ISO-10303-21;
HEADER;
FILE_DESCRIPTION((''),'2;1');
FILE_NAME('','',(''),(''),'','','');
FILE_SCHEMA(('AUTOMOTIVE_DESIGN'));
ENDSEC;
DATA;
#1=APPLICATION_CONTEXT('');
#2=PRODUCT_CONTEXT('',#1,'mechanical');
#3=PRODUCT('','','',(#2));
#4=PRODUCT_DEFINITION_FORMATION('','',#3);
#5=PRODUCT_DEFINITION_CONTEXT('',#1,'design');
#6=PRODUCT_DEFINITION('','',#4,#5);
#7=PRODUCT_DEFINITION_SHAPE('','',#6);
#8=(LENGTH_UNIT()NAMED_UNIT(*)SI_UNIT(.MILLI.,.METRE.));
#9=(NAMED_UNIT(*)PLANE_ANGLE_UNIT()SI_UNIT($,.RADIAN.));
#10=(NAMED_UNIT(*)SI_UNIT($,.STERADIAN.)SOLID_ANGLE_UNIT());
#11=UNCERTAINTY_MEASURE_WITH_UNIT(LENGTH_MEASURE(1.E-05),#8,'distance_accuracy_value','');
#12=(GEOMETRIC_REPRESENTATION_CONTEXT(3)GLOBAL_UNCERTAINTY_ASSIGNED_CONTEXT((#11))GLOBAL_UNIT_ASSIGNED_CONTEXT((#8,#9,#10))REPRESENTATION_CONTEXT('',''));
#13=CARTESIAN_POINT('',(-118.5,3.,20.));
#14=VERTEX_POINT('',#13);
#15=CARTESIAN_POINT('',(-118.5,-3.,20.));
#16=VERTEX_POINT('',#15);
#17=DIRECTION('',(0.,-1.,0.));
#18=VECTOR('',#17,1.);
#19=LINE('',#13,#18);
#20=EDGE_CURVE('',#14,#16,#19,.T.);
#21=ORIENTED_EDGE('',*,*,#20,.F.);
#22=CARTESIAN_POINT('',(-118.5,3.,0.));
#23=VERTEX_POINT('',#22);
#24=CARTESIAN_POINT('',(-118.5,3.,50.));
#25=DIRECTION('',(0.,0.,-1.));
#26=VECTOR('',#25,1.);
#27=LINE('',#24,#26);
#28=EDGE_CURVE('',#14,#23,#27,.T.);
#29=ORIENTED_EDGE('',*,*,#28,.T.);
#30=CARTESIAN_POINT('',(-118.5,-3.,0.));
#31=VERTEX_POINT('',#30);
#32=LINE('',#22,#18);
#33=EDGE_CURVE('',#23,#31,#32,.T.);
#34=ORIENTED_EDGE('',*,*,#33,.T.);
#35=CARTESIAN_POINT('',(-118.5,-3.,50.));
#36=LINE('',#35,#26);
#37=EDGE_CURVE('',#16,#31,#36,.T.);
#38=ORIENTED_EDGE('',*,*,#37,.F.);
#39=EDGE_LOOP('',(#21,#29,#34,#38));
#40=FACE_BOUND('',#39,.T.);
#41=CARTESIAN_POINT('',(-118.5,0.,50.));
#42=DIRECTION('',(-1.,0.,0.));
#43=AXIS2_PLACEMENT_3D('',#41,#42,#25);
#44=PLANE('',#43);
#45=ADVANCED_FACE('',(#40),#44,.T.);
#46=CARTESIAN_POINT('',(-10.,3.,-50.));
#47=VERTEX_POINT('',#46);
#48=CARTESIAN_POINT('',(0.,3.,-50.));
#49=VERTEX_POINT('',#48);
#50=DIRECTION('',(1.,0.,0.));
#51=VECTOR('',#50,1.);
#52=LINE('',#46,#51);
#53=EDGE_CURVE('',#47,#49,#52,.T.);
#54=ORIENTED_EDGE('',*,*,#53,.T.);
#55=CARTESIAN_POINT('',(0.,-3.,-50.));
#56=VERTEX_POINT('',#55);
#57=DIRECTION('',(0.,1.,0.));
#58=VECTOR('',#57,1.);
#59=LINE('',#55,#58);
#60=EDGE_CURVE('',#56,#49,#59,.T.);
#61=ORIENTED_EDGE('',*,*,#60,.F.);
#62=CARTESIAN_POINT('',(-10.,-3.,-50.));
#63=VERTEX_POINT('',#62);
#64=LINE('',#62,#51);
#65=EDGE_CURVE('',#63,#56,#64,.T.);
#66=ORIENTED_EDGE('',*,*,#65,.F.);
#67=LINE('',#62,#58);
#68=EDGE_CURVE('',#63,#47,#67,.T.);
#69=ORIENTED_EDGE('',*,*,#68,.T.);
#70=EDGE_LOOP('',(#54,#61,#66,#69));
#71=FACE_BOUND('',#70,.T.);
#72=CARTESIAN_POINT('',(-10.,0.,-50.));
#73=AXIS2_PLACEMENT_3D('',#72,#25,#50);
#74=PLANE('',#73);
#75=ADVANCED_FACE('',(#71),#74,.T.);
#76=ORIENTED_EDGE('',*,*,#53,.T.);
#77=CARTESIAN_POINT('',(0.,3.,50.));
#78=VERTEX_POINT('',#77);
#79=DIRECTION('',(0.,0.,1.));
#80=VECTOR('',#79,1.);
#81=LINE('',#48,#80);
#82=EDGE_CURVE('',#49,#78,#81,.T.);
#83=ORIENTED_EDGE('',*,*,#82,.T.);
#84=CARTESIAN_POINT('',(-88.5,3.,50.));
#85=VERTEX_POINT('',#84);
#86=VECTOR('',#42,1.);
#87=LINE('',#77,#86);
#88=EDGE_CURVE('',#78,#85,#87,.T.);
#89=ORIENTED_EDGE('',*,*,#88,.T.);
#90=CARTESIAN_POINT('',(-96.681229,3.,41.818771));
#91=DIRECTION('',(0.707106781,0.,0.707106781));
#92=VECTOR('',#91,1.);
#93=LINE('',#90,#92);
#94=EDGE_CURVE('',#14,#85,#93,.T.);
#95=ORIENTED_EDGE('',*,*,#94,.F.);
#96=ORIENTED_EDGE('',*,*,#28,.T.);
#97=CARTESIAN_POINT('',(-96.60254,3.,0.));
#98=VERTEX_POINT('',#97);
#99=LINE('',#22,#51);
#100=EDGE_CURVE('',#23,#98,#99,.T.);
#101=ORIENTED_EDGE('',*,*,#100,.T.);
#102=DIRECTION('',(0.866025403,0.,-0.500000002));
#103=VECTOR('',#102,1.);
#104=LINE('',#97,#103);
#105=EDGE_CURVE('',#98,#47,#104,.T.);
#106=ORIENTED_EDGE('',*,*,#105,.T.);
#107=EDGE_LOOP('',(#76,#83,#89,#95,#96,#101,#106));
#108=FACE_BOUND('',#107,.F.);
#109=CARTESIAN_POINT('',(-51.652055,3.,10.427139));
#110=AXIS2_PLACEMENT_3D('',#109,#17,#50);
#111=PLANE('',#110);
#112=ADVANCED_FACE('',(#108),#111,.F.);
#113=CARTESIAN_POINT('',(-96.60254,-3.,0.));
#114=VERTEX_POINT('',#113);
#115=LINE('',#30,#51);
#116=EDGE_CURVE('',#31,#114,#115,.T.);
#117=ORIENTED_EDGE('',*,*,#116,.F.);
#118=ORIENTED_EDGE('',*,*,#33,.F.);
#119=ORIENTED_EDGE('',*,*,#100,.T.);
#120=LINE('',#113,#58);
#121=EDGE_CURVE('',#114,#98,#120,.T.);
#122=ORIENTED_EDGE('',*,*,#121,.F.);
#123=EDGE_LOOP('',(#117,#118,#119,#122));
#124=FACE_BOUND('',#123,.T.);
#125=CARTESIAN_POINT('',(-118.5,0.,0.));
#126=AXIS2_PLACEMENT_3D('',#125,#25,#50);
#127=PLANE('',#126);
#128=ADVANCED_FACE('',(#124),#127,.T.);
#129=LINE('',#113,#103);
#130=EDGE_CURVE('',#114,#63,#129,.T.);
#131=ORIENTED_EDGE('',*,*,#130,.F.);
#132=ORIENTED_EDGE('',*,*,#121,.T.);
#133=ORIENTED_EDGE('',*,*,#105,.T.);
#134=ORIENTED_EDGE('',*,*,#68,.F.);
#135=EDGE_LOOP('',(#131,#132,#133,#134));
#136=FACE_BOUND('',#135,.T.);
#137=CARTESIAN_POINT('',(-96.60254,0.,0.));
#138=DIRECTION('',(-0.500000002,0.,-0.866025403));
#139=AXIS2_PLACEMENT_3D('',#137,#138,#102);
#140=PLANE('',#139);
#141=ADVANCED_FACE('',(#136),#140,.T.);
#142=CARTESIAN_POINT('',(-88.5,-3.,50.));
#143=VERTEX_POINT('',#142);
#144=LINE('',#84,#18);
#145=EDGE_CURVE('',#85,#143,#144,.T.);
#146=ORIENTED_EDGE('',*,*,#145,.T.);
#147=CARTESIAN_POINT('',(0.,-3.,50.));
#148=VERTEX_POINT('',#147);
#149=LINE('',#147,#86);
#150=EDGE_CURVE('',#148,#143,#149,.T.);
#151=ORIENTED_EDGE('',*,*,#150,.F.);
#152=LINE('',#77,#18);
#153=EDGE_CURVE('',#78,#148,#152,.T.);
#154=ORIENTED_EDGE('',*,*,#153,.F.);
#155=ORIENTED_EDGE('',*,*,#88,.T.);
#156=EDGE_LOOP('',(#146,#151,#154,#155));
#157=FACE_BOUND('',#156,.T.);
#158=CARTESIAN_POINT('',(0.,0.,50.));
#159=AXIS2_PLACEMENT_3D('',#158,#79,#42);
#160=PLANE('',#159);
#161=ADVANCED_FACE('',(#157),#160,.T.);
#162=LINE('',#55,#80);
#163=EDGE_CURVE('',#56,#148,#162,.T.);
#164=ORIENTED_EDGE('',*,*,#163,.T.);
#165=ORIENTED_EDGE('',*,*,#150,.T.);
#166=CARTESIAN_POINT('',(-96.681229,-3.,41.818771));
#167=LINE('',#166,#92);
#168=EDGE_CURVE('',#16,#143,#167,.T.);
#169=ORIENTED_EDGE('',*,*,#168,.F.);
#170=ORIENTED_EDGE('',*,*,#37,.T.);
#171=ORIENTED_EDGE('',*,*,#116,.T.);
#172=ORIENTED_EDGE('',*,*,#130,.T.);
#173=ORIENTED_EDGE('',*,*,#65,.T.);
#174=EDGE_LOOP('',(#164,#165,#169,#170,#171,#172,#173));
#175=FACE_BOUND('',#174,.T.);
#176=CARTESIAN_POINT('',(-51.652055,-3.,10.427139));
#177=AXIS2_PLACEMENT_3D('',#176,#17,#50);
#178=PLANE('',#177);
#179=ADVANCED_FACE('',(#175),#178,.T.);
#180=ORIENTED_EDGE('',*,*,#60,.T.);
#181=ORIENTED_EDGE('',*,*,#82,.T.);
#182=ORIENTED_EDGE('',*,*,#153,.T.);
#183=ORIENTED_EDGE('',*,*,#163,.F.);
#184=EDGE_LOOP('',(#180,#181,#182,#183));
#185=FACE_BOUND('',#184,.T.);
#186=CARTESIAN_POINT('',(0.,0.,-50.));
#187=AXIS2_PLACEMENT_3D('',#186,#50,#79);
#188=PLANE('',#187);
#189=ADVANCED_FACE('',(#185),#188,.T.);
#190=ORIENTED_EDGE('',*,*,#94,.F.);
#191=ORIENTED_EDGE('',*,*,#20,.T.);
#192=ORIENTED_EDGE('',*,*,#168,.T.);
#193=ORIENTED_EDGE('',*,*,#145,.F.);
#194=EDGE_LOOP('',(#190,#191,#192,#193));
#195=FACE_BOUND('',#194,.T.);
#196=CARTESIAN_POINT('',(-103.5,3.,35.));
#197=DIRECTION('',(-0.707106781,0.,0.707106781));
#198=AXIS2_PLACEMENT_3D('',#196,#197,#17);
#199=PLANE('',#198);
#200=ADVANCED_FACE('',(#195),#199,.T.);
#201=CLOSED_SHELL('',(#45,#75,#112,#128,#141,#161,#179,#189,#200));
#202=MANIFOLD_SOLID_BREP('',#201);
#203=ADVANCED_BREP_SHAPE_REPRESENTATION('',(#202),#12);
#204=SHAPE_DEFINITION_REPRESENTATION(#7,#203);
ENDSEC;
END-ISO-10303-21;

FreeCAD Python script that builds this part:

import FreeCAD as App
import Part
import Sketcher

V = App.Vector
Q = App.Units.Quantity


def edges_at(feature, points):
    """Names of the edges that pass closest to the given points."""
    edges = feature.Shape.Edges
    near = lambda p: min(range(len(edges)), key=lambda i: edges[i].distToShape(Part.Vertex(*p))[0])
    return sorted({f"Edge{near(p) + 1}" for p in points})

doc = App.newDocument("Part")
body = doc.addObject("PartDesign::Body", "Body")

# Sketch on XZ plane
sketch1 = body.newObject("Sketcher::SketchObject", "Sketch")
sketch1.AttachmentSupport = (doc.getObject("XZ_Plane"), [""])
sketch1.MapMode = "FlatFace"
sketch1.addGeometry(Part.LineSegment(V(0, -50, 0), V(0, 50, 0)), False)
sketch1.addGeometry(Part.LineSegment(V(0, 50, 0), V(-118.5, 50, 0)), False)
sketch1.addGeometry(Part.LineSegment(V(-118.5, 50, 0), V(-118.5, 0, 0)), False)
sketch1.addGeometry(Part.LineSegment(V(-118.5, 0, 0), V(-96.60254, 0, 0)), False)
sketch1.addGeometry(Part.LineSegment(V(-96.60254, 0, 0), V(-10, -50, 0)), False)
sketch1.addGeometry(Part.LineSegment(V(-10, -50, 0), V(0, -50, 0)), False)
sketch1.addConstraint(Sketcher.Constraint("Coincident", 0, 2, 1, 1))
sketch1.addConstraint(Sketcher.Constraint("Coincident", 1, 2, 2, 1))
sketch1.addConstraint(Sketcher.Constraint("Coincident", 2, 2, 3, 1))
sketch1.addConstraint(Sketcher.Constraint("Coincident", 3, 2, 4, 1))
sketch1.addConstraint(Sketcher.Constraint("Coincident", 4, 2, 5, 1))
sketch1.addConstraint(Sketcher.Constraint("Coincident", 5, 2, 0, 1))
sketch1.addConstraint(Sketcher.Constraint("Vertical", 0))
sketch1.addConstraint(Sketcher.Constraint("Horizontal", 1))
sketch1.addConstraint(Sketcher.Constraint("Vertical", 2))
sketch1.addConstraint(Sketcher.Constraint("Horizontal", 3))
sketch1.addConstraint(Sketcher.Constraint("Horizontal", 5))
sketch1.addConstraint(Sketcher.Constraint("Symmetric", 0, 2, 5, 2, -1, 1))
sketch1.addConstraint(Sketcher.Constraint("PointOnObject", 2, 2, -1))
sketch1.addConstraint(Sketcher.Constraint("DistanceX", 5, 1, 5, 2, Q("10 mm")))
sketch1.addConstraint(Sketcher.Constraint("DistanceY", 0, 1, 0, 2, Q("100 mm")))
sketch1.addConstraint(Sketcher.Constraint("Angle", 4, Q("-30 deg")))
sketch1.addConstraint(Sketcher.Constraint("DistanceX", 1, 2, 1, 1, Q("118.5 mm")))
pad1 = body.newObject("PartDesign::Pad", "Pad")
pad1.Profile = sketch1
pad1.Length = 6
pad1.Midplane = True
doc.recompute()

chamfer = body.newObject("PartDesign::Chamfer", "Chamfer")
chamfer.Base = (pad1, edges_at(pad1, [(-118.5, 0, 50)]))
chamfer.Size = 30

doc.recompute()
